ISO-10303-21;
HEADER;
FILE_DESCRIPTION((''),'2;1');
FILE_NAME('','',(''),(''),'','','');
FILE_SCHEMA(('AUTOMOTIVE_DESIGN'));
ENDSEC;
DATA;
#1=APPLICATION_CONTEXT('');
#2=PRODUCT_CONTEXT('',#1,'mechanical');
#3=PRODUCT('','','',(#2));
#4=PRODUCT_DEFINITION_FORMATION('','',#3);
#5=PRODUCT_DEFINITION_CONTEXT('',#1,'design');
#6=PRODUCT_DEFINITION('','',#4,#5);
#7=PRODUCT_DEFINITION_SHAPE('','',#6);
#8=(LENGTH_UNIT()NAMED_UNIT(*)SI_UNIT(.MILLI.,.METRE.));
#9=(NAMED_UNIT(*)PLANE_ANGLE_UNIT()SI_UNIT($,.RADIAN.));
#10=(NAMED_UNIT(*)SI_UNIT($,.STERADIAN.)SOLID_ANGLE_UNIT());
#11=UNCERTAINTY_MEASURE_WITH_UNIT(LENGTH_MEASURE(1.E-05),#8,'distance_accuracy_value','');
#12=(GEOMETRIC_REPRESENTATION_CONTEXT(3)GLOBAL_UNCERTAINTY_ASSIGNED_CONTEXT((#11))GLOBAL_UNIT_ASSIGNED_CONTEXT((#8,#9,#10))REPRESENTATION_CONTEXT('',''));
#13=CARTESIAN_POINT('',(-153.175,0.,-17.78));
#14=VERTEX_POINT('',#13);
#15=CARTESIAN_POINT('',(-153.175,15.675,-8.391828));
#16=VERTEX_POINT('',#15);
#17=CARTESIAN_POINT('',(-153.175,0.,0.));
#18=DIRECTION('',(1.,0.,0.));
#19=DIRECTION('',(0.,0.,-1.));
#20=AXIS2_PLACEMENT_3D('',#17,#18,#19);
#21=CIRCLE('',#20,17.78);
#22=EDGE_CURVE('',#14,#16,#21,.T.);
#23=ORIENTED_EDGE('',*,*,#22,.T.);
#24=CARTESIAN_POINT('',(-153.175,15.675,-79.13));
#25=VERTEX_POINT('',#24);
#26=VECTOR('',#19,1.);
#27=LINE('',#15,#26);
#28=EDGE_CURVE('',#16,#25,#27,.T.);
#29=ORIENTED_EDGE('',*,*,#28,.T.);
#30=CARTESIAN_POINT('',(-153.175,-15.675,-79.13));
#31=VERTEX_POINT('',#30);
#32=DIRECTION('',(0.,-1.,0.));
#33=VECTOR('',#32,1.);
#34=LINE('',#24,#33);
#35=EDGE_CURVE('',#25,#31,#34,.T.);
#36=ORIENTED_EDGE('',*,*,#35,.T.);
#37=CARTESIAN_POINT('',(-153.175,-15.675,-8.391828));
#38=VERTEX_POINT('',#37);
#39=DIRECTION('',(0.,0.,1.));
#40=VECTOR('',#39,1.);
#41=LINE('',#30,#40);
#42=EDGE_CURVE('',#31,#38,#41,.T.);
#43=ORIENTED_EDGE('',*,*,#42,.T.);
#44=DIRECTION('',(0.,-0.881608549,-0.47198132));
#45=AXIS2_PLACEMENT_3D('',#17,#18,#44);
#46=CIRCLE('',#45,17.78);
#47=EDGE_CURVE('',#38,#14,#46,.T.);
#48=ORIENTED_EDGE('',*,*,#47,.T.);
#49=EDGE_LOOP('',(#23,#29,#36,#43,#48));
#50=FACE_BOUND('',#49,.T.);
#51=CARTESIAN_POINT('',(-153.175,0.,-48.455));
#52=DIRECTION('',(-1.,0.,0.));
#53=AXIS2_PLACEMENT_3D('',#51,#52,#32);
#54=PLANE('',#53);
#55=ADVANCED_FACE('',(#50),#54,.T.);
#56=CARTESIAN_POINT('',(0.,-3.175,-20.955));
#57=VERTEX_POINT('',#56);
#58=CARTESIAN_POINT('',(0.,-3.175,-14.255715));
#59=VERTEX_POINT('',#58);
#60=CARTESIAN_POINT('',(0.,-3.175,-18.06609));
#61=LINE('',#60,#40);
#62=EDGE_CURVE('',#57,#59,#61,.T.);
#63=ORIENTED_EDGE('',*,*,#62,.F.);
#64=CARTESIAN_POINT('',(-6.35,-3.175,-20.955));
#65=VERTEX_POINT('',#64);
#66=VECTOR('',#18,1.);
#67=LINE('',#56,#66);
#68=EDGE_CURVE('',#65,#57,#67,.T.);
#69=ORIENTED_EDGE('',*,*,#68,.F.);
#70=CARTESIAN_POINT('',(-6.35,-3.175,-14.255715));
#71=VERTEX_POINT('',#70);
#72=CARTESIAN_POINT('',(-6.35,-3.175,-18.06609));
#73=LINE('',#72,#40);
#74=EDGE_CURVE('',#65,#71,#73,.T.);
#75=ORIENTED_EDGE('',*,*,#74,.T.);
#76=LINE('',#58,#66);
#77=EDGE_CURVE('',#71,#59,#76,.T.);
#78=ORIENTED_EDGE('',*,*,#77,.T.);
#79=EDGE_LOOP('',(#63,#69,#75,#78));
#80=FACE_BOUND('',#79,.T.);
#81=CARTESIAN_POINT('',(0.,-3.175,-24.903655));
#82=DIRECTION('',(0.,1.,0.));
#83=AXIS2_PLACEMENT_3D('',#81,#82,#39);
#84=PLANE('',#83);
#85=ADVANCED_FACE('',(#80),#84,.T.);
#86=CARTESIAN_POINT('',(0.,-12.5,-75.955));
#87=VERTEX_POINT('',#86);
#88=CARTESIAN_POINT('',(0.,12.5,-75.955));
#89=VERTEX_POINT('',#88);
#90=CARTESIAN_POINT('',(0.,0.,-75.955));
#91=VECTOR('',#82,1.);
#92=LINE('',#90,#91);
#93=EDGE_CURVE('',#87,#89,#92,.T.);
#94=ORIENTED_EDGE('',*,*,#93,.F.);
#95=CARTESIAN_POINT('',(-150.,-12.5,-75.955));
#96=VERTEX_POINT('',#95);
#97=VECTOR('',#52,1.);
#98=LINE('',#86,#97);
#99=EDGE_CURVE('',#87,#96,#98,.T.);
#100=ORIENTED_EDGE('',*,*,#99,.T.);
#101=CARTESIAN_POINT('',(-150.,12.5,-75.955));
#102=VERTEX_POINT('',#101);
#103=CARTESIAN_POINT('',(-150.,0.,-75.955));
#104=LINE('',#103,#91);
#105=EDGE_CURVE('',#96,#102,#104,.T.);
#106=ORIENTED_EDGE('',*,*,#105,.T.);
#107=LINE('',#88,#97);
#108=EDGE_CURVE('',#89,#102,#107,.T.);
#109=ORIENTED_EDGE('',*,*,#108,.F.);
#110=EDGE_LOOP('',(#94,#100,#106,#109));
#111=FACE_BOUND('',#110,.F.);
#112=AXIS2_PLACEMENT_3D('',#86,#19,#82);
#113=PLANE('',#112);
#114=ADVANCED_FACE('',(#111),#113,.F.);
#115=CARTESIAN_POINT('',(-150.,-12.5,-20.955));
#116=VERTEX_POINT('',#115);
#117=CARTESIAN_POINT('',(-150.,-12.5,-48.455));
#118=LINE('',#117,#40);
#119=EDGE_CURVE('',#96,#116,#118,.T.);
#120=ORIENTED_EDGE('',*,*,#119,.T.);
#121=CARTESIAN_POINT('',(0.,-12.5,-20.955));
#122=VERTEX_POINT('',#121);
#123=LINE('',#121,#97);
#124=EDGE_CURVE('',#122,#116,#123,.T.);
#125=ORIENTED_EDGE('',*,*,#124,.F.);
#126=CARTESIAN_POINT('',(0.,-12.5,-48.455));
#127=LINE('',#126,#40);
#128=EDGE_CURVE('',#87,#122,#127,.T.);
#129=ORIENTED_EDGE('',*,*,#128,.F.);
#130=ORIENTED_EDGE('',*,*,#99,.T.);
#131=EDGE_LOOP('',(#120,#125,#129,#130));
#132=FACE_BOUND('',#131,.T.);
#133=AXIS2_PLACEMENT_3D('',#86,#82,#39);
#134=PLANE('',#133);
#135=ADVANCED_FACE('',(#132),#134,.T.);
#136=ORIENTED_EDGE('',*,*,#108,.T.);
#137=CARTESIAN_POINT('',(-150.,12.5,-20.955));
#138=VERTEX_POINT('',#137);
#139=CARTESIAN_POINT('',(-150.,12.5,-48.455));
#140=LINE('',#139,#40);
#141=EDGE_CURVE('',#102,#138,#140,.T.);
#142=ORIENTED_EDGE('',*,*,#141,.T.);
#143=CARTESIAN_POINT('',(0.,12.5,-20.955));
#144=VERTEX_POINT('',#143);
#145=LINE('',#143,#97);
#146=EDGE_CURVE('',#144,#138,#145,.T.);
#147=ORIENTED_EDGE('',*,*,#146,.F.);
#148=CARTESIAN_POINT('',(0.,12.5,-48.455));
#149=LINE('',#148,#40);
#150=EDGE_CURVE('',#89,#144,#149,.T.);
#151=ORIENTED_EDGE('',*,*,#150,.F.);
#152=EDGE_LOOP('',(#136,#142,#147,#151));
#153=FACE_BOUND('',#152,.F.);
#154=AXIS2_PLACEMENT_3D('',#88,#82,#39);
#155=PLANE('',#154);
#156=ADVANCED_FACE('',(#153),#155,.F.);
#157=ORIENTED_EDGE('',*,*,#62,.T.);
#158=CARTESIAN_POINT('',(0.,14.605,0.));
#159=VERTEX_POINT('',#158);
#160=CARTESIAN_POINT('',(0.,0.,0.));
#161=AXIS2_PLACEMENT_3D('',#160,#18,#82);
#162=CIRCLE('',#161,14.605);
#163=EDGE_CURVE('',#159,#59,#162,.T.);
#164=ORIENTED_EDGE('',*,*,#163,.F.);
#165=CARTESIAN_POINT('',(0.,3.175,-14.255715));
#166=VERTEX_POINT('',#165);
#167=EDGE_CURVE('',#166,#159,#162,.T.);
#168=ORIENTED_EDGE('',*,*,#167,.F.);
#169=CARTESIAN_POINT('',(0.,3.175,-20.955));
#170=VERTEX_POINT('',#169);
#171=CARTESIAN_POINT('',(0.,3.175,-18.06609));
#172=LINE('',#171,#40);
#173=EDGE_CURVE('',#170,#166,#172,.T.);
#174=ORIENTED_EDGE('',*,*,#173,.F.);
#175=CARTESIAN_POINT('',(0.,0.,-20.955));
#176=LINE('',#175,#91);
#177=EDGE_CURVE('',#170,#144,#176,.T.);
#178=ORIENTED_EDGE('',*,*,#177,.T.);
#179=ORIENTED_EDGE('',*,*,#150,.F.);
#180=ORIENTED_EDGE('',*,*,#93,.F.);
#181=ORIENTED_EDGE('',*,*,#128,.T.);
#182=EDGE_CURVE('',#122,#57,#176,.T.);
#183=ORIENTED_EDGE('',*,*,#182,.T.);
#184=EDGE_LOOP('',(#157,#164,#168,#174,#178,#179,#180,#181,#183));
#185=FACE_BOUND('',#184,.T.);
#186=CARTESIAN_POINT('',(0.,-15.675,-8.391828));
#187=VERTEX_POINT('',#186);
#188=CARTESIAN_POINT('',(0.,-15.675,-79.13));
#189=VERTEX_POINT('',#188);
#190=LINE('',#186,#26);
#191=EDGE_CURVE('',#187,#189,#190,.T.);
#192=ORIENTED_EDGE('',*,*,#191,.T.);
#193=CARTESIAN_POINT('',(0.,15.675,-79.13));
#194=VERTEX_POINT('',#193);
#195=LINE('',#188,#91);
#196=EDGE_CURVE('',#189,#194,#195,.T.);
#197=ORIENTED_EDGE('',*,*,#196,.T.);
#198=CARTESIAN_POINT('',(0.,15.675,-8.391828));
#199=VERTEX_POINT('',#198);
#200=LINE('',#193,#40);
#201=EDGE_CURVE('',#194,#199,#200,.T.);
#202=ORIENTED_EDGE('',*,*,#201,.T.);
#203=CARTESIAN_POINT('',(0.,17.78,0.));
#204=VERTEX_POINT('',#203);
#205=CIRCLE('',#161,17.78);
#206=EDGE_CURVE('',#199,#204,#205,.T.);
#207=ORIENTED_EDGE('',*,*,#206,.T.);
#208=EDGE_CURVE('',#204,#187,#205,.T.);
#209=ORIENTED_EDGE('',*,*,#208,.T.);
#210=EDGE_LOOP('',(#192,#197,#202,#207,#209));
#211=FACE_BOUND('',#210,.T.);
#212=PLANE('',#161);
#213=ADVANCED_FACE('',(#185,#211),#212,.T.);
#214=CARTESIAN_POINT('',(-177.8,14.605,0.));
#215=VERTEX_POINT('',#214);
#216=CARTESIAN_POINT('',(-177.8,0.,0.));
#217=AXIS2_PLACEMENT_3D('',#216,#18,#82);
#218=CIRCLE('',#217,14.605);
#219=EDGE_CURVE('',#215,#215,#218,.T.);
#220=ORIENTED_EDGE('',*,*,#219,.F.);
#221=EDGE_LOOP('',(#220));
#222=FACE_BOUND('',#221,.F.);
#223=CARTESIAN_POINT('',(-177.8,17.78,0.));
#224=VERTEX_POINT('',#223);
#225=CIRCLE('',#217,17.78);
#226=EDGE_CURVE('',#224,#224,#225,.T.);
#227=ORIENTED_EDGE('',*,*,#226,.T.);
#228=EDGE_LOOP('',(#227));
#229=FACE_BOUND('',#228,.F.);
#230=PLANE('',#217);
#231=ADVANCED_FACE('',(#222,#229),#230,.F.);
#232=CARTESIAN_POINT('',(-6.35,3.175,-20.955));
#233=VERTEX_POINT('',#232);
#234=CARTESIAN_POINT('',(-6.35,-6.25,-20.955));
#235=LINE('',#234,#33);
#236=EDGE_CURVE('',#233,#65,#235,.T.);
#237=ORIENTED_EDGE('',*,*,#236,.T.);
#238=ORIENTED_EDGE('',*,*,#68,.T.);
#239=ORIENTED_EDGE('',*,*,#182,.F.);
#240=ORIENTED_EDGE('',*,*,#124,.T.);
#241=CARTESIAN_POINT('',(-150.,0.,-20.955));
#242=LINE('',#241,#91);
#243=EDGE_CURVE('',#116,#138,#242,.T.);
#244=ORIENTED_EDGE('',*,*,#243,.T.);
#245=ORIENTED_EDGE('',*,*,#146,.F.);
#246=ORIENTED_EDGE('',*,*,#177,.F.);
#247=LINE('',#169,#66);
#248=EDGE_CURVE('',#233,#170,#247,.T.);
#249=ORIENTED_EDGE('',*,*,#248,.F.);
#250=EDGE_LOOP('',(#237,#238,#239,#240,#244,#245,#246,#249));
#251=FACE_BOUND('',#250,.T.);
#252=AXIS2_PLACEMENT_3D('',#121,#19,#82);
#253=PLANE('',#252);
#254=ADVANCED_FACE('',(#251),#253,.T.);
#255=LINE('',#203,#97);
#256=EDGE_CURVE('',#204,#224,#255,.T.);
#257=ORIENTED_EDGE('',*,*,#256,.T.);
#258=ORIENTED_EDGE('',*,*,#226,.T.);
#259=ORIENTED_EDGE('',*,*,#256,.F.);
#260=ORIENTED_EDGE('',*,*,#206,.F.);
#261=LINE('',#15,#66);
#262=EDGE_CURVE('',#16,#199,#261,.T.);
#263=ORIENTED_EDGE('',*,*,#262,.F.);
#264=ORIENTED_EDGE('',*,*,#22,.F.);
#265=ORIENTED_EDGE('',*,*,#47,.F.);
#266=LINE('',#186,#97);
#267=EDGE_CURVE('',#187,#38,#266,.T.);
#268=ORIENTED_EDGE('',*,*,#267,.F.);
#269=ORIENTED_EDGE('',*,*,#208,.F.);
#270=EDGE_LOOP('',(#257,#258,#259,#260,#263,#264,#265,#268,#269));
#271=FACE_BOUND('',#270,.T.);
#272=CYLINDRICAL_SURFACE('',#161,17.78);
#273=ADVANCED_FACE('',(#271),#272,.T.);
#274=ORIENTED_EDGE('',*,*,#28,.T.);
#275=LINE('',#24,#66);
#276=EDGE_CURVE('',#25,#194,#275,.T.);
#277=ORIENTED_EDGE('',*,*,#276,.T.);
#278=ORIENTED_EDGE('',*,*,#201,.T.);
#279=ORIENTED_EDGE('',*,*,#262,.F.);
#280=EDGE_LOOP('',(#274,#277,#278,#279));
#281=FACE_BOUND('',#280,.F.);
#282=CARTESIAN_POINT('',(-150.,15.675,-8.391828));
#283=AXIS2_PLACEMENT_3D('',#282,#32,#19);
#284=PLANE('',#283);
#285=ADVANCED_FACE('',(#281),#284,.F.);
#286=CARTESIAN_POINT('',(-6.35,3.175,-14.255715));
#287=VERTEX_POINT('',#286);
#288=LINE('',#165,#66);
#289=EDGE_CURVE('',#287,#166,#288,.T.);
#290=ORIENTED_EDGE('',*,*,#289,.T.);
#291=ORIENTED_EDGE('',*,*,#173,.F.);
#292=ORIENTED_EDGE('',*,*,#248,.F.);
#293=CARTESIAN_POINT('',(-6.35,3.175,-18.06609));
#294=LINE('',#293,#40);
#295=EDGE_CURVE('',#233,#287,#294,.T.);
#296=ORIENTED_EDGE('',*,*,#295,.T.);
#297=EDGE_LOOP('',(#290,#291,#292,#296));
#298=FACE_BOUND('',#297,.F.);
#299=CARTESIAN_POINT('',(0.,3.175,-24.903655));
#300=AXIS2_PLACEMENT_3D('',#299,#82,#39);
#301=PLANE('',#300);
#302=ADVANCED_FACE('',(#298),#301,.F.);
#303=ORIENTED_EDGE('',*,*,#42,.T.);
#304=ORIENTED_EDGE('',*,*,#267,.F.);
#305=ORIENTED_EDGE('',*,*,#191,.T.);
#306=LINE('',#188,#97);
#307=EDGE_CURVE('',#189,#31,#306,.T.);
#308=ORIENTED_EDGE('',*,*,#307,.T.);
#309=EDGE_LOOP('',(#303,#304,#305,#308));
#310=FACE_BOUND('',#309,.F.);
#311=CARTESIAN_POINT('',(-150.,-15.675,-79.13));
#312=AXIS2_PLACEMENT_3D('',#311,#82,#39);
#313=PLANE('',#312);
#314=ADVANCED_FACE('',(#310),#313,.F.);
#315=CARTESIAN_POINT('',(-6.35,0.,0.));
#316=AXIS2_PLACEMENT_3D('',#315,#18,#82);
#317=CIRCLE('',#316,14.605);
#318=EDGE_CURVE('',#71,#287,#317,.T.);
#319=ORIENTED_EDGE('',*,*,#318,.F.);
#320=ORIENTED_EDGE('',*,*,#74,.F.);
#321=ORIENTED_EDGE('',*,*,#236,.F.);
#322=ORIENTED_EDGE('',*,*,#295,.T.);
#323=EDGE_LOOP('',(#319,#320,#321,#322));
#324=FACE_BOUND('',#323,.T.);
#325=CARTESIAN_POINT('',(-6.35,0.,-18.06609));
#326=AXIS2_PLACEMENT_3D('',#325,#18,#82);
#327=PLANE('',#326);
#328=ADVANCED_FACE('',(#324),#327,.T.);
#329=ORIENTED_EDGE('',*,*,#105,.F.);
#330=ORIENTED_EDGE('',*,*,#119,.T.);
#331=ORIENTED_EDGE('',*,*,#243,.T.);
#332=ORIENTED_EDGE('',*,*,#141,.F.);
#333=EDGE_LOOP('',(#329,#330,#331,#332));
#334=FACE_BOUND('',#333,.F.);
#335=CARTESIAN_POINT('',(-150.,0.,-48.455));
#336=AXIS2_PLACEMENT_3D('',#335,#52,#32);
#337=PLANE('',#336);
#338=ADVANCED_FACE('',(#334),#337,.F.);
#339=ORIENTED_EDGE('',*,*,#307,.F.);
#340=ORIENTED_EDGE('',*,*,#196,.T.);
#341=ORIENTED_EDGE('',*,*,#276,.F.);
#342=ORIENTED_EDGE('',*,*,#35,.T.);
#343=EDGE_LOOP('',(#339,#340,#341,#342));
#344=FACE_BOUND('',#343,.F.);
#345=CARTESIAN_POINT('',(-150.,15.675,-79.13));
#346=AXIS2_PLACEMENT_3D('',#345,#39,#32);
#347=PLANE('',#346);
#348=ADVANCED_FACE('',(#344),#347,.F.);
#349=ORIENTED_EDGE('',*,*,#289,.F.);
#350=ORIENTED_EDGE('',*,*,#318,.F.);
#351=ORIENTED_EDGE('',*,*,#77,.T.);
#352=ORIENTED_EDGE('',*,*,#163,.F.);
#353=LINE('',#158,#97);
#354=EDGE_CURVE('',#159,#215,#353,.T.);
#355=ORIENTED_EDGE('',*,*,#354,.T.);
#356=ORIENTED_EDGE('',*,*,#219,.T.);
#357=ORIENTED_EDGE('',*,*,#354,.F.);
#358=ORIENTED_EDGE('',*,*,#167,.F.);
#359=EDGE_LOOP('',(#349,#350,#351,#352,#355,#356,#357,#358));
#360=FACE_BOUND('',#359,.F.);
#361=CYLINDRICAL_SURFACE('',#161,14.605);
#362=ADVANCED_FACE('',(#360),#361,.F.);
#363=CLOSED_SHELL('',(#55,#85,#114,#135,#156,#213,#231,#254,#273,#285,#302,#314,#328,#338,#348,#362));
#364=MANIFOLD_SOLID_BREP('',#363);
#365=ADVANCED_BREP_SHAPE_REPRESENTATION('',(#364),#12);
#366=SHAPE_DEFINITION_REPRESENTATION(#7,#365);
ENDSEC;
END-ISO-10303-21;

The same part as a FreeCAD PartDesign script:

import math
import FreeCAD as App
import Part
import Sketcher

V = App.Vector
Q = App.Units.Quantity

doc = App.newDocument("Part")
params = doc.addObject("Spreadsheet::Sheet", "Params")
for row, (alias, value) in enumerate([
    ("sketch1_diameter", "1.4 in"),
    ("sketch1_diameter2", "1.15 in"),
    ("pad1_length", "7 in"),
    ("sketch2_radius", "0.7 in"),
    ("pad2_length", "150 mm"),
    ("sketch3_radius", "0.7 in"),
    ("pad3_length", "0.125 in"),
    ("sketch4_width", "0.25 in"),
    ("pocket1_length", "0.25 in"),
], start=1):
    params.set(f"A{row}", alias)
    params.set(f"B{row}", "=" + value)
    params.setAlias(f"B{row}", alias)

body = doc.addObject("PartDesign::Body", "Body")

# Sketch on YZ plane
sketch1 = body.newObject("Sketcher::SketchObject", "Sketch")
sketch1.AttachmentSupport = (doc.getObject("YZ_Plane"), [""])
sketch1.MapMode = "FlatFace"
sketch1.addGeometry(Part.Circle(V(0, 0, 0), V(0, 0, 1), 18), False)
sketch1.addGeometry(Part.Circle(V(0, 0, 0), V(0, 0, 1), 15), False)
sketch1.addConstraint(Sketcher.Constraint("Coincident", 0, 3, -1, 1))
sketch1.addConstraint(Sketcher.Constraint("Coincident", 1, 3, -1, 1))
sketch1.addConstraint(Sketcher.Constraint("Diameter", 0, Q("1.4 in")))
sketch1.addConstraint(Sketcher.Constraint("Diameter", 1, Q("1.15 in")))
sketch1.setExpression("Constraints[2]", "Params.sketch1_diameter")
sketch1.setExpression("Constraints[3]", "Params.sketch1_diameter2")
pad1 = body.newObject("PartDesign::Pad", "Pad")
pad1.Profile = sketch1
pad1.setExpression("Length", "Params.pad1_length")
pad1.Reversed = True

# Sketch on YZ plane
sketch2 = body.newObject("Sketcher::SketchObject", "Sketch001")
sketch2.AttachmentSupport = (doc.getObject("YZ_Plane"), [""])
sketch2.MapMode = "FlatFace"
sketch2.addGeometry(Part.LineSegment(V(-16, -79, 0), V(16, -79, 0)), False)
sketch2.addGeometry(Part.LineSegment(V(16, -79, 0), V(16, -8, 0)), False)
sketch2.addGeometry(Part.ArcOfCircle(Part.Circle(V(0, 0, 0), V(0, 0, 1), 18), math.radians(-90), math.radians(-28)), False)
sketch2.addGeometry(Part.ArcOfCircle(Part.Circle(V(0, 0, 0), V(0, 0, 1), 18), math.radians(-152), math.radians(-90)), False)
sketch2.addGeometry(Part.LineSegment(V(-16, -8, 0), V(-16, -79, 0)), False)
sketch2.addGeometry(Part.LineSegment(V(12, -76, 0), V(-12, -76, 0)), False)
sketch2.addGeometry(Part.LineSegment(V(-12, -76, 0), V(-12, -21, 0)), False)
sketch2.addGeometry(Part.LineSegment(V(-12, -21, 0), V(12, -21, 0)), False)
sketch2.addGeometry(Part.LineSegment(V(12, -21, 0), V(12, -76, 0)), False)
sketch2.addConstraint(Sketcher.Constraint("Coincident", 0, 2, 1, 1))
sketch2.addConstraint(Sketcher.Constraint("Coincident", 1, 2, 2, 2))
sketch2.addConstraint(Sketcher.Constraint("Tangent", 2, 1, 3, 2))
sketch2.addConstraint(Sketcher.Constraint("Coincident", 3, 1, 4, 1))
sketch2.addConstraint(Sketcher.Constraint("Coincident", 4, 2, 0, 1))
sketch2.addConstraint(Sketcher.Constraint("Coincident", 5, 2, 6, 1))
sketch2.addConstraint(Sketcher.Constraint("Coincident", 6, 2, 7, 1))
sketch2.addConstraint(Sketcher.Constraint("Coincident", 7, 2, 8, 1))
sketch2.addConstraint(Sketcher.Constraint("Coincident", 8, 2, 5, 1))
sketch2.addConstraint(Sketcher.Constraint("Horizontal", 0))
sketch2.addConstraint(Sketcher.Constraint("Vertical", 1))
sketch2.addConstraint(Sketcher.Constraint("Vertical", 4))
sketch2.addConstraint(Sketcher.Constraint("Horizontal", 5))
sketch2.addConstraint(Sketcher.Constraint("Vertical", 6))
sketch2.addConstraint(Sketcher.Constraint("Horizontal", 7))
sketch2.addConstraint(Sketcher.Constraint("Vertical", 8))
sketch2.addConstraint(Sketcher.Constraint("Coincident", 2, 3, -1, 1))
sketch2.addConstraint(Sketcher.Constraint("Equal", 2, 3))
sketch2.addConstraint(Sketcher.Constraint("PointOnObject", 2, 1, -2))
sketch2.addConstraint(Sketcher.Constraint("Horizontal", 1, 2, 3, 1))
sketch2.addConstraint(Sketcher.Constraint("Radius", 2, Q("0.7 in")))
sketch2.addConstraint(Sketcher.Constraint("DistanceY", 6, 2, -1, 1, Q("0.825 in")))
sketch2.addConstraint(Sketcher.Constraint("DistanceX", 4, 2, 5, 2, Q("0.125 in")))
sketch2.addConstraint(Sketcher.Constraint("DistanceY", 4, 2, 5, 2, Q("0.125 in")))
sketch2.addConstraint(Sketcher.Constraint("DistanceX", 7, 2, 1, 2, Q("0.125 in")))
sketch2.addConstraint(Sketcher.Constraint("DistanceX", 0, 1, 0, 2, 31.35))
sketch2.addConstraint(Sketcher.Constraint("DistanceY", 6, 1, 6, 2, 55.0))
sketch2.setExpression("Constraints[20]", "Params.sketch2_radius")
pad2 = body.newObject("PartDesign::Pad", "Pad001")
pad2.Profile = sketch2
pad2.setExpression("Length", "Params.pad2_length")
pad2.Reversed = True

# Sketch on YZ plane
sketch3 = body.newObject("Sketcher::SketchObject", "Sketch002")
sketch3.AttachmentSupport = (doc.getObject("YZ_Plane"), [""])
sketch3.MapMode = "FlatFace"
sketch3.AttachmentOffset = App.Placement(V(0, 0, -150), App.Rotation())
sketch3.addGeometry(Part.LineSegment(V(16, -79, 0), V(-16, -79, 0)), False)
sketch3.addGeometry(Part.LineSegment(V(-16, -79, 0), V(-16, -8, 0)), False)
sketch3.addGeometry(Part.ArcOfCircle(Part.Circle(V(0, 0, 0), V(0, 0, 1), 18), math.radians(-152), math.radians(-90)), False)
sketch3.addGeometry(Part.ArcOfCircle(Part.Circle(V(0, 0, 0), V(0, 0, 1), 18), math.radians(-90), math.radians(-28)), False)
sketch3.addGeometry(Part.LineSegment(V(16, -8, 0), V(16, -79, 0)), False)
sketch3.addConstraint(Sketcher.Constraint("Coincident", 0, 2, 1, 1))
sketch3.addConstraint(Sketcher.Constraint("Coincident", 1, 2, 2, 1))
sketch3.addConstraint(Sketcher.Constraint("Tangent", 2, 2, 3, 1))
sketch3.addConstraint(Sketcher.Constraint("Coincident", 3, 2, 4, 1))
sketch3.addConstraint(Sketcher.Constraint("Coincident", 4, 2, 0, 1))
sketch3.addConstraint(Sketcher.Constraint("Horizontal", 0))
sketch3.addConstraint(Sketcher.Constraint("Vertical", 1))
sketch3.addConstraint(Sketcher.Constraint("Vertical", 4))
sketch3.addConstraint(Sketcher.Constraint("Coincident", 2, 3, -1, 1))
sketch3.addConstraint(Sketcher.Constraint("Equal", 2, 3))
sketch3.addConstraint(Sketcher.Constraint("PointOnObject", 2, 2, -2))
sketch3.addConstraint(Sketcher.Constraint("Horizontal", 1, 2, 3, 2))
sketch3.addConstraint(Sketcher.Constraint("Radius", 2, Q("0.7 in")))
sketch3.addConstraint(Sketcher.Constraint("DistanceX", 0, 2, 0, 1, 31.35))
sketch3.addConstraint(Sketcher.Constraint("DistanceY", 0, 2, -1, 1, 79.13))
sketch3.setExpression("Constraints[12]", "Params.sketch3_radius")
pad3 = body.newObject("PartDesign::Pad", "Pad002")
pad3.Profile = sketch3
pad3.setExpression("Length", "Params.pad3_length")
pad3.Reversed = True

# Sketch on YZ plane
sketch4 = body.newObject("Sketcher::SketchObject", "Sketch003")
sketch4.AttachmentSupport = (doc.getObject("YZ_Plane"), [""])
sketch4.MapMode = "FlatFace"
sketch4.addGeometry(Part.LineSegment(V(-3, -11, 0), V(-3, -25, 0)), False)
sketch4.addGeometry(Part.LineSegment(V(-3, -25, 0), V(3, -25, 0)), False)
sketch4.addGeometry(Part.LineSegment(V(3, -25, 0), V(3, -11, 0)), False)
sketch4.addGeometry(Part.LineSegment(V(3, -11, 0), V(-3, -11, 0)), False)
sketch4.addConstraint(Sketcher.Constraint("Coincident", 0, 2, 1, 1))
sketch4.addConstraint(Sketcher.Constraint("Coincident", 1, 2, 2, 1))
sketch4.addConstraint(Sketcher.Constraint("Coincident", 2, 2, 3, 1))
sketch4.addConstraint(Sketcher.Constraint("Coincident", 3, 2, 0, 1))
sketch4.addConstraint(Sketcher.Constraint("Vertical", 0))
sketch4.addConstraint(Sketcher.Constraint("Horizontal", 1))
sketch4.addConstraint(Sketcher.Constraint("Vertical", 2))
sketch4.addConstraint(Sketcher.Constraint("Horizontal", 3))
sketch4.addConstraint(Sketcher.Constraint("DistanceX", 1, 1, 1, 2, Q("0.25 in")))
sketch4.addConstraint(Sketcher.Constraint("DistanceX", 0, 2, -1, 1, Q("0.125 in")))
sketch4.addConstraint(Sketcher.Constraint("DistanceY", 0, 2, 0, 1, 13.675131))
sketch4.addConstraint(Sketcher.Constraint("DistanceY", 0, 2, -1, 1, 24.903655))
sketch4.setExpression("Constraints[8]", "Params.sketch4_width")
pocket1 = body.newObject("PartDesign::Pocket", "Pocket")
pocket1.Profile = sketch4
pocket1.setExpression("Length", "Params.pocket1_length")

doc.recompute()
